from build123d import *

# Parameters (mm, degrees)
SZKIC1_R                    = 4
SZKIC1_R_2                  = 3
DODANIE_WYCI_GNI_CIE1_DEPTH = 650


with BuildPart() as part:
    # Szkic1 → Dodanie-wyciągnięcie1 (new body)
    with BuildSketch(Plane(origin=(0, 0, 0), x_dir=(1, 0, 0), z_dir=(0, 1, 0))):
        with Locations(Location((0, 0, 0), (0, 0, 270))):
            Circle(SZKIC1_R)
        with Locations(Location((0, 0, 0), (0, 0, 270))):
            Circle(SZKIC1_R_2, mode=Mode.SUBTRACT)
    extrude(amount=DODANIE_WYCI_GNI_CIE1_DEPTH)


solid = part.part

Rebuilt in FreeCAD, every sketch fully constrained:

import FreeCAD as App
import Part
import Sketcher
Q = App.Units.Quantity

doc = App.newDocument("Part")
body = doc.addObject("PartDesign::Body", "Body")

sketch1 = body.newObject("Sketcher::SketchObject", "Sketch")
sketch1.AttachmentSupport = (doc.getObject("XZ_Plane"), [""])
sketch1.MapMode = "FlatFace"
sketch1.addGeometry([
    Part.Circle(App.Vector(0, 0, 0), App.Vector(0, 0, 1), 4),
    Part.Circle(App.Vector(0, 0, 0), App.Vector(0, 0, 1), 3),
], False)
sketch1.addConstraint([
    Sketcher.Constraint("Coincident", 0, 3, -1, 1),
    Sketcher.Constraint("Coincident", 1, 3, -1, 1),
    Sketcher.Constraint("Diameter", 0, Q("8 mm")),
    Sketcher.Constraint("Diameter", 1, Q("6 mm")),
])
pad1 = body.newObject("PartDesign::Pad", "Pad")
pad1.Profile = sketch1
pad1.Length = 650
pad1.Reversed = True

doc.recompute()
